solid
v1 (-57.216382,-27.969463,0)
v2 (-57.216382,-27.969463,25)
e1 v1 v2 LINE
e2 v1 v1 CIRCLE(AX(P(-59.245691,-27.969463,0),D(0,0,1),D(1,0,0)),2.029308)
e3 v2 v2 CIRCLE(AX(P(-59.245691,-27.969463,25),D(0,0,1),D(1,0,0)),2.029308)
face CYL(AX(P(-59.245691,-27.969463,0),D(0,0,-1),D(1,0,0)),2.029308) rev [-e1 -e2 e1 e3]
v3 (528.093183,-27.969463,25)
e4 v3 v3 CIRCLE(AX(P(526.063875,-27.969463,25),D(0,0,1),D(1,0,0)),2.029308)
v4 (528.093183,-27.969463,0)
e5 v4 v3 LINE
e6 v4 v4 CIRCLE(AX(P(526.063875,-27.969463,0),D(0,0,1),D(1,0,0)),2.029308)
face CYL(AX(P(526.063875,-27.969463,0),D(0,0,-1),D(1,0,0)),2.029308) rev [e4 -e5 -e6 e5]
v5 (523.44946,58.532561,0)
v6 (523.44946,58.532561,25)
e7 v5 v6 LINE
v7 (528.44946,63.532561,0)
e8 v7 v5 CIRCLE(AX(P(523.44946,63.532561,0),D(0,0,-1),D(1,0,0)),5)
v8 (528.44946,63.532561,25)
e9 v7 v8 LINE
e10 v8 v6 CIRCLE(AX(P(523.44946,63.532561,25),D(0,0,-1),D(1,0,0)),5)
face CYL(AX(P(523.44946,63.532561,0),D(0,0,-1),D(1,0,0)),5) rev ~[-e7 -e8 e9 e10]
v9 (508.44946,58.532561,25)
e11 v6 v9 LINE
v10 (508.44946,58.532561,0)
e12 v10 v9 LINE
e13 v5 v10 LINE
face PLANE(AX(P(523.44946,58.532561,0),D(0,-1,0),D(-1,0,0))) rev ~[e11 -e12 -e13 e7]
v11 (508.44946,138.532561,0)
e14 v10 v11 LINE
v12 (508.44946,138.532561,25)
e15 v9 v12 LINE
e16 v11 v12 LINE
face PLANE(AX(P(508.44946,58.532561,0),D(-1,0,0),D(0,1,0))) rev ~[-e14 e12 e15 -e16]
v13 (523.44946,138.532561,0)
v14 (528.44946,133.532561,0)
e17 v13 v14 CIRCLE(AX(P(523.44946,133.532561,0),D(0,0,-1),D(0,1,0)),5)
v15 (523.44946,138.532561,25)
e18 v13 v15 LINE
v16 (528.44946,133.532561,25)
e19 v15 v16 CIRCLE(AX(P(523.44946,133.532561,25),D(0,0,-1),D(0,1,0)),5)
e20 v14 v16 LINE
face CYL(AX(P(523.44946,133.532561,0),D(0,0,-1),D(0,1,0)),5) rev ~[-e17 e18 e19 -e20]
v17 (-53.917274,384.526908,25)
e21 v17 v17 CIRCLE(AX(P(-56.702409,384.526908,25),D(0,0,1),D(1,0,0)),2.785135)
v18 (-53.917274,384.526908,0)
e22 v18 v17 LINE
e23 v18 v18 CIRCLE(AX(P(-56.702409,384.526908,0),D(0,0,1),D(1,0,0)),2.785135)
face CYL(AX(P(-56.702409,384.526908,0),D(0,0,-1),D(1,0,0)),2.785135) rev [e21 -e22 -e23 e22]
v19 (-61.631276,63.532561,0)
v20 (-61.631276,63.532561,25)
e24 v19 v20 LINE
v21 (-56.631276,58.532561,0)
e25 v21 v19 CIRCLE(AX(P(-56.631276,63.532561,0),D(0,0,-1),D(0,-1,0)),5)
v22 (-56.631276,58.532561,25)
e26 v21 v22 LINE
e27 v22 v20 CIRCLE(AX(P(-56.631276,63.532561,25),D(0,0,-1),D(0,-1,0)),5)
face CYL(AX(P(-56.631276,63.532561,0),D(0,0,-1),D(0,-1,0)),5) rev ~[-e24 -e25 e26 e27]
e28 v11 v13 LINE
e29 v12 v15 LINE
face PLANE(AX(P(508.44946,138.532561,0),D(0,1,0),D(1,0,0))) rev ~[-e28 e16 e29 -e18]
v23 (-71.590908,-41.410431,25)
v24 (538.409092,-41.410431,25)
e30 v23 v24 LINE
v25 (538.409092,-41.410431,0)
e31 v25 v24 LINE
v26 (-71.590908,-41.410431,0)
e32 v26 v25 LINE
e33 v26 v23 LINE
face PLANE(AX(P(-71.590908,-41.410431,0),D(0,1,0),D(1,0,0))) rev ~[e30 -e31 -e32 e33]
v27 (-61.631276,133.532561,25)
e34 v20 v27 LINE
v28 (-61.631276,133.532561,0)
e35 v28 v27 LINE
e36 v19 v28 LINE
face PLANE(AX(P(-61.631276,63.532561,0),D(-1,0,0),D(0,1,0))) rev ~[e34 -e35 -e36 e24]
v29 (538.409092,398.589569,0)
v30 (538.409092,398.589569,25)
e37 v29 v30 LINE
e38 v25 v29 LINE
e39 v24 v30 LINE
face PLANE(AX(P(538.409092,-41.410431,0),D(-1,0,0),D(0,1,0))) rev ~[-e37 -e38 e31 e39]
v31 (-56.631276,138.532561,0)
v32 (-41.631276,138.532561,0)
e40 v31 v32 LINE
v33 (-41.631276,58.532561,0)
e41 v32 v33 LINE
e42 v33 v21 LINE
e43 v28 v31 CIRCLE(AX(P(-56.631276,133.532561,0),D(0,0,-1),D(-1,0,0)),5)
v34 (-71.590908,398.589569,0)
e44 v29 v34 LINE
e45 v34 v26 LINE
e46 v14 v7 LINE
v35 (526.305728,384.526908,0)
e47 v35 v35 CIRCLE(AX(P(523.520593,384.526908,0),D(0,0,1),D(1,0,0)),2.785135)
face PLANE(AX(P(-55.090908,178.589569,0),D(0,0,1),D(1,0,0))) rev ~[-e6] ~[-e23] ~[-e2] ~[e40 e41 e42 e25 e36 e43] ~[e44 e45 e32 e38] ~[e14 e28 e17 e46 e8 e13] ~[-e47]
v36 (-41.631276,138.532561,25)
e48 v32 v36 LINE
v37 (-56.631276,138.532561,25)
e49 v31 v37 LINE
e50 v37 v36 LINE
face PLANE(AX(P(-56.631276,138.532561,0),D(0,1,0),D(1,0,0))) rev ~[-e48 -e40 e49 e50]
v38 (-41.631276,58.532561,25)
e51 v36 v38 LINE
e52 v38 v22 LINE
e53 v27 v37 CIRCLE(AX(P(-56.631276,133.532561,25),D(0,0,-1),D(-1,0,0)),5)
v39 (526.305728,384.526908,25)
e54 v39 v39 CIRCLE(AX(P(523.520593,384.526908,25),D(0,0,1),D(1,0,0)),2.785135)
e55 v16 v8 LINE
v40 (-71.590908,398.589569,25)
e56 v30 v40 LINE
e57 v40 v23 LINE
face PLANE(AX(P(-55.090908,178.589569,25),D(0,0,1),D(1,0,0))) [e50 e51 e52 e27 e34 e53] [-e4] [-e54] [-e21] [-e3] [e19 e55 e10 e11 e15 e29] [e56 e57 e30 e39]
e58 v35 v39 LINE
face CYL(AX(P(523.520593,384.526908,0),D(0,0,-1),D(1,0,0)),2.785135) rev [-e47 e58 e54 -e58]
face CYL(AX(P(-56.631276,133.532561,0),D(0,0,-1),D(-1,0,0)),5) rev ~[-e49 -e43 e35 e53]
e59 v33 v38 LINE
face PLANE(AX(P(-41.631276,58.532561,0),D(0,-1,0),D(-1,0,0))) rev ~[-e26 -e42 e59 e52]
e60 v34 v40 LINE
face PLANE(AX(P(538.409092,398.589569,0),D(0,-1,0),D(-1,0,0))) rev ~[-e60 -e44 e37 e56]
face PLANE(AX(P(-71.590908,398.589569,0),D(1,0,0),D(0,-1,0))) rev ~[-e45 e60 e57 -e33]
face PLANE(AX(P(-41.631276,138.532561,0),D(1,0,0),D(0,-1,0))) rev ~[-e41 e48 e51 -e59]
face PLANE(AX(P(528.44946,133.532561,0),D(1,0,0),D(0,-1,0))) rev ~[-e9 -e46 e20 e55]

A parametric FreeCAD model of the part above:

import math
import FreeCAD as App
import Part
import Sketcher
from FreeCAD import Vector
Q = App.Units.Quantity


def add_polygon(sketch, points):
    """Adds a closed chain of lines whose ends are joined by coincident constraints."""
    first, n = sketch.GeometryCount, len(points)
    for a, b in zip(points, points[1:] + points[:1]):
        sketch.addGeometry(Part.LineSegment(App.Vector(*a, 0), App.Vector(*b, 0)), False)
    for i in range(n):
        sketch.addConstraint(Sketcher.Constraint("Coincident", first + i, 2, first + (i + 1) % n, 1))

doc = App.newDocument("Part")
body = doc.addObject("PartDesign::Body", "Body")

# Sketch on XY plane
sketch1 = doc.addObject("Sketcher::SketchObject", "Sketch")
body.addObject(sketch1)
sketch1.AttachmentSupport = (doc.XY_Plane, [""])
sketch1.MapMode = "FlatFace"
add_polygon(sketch1, [(-71.6, 398.6), (-71.6, -41.4), (538.4, -41.4), (538.4, 398.6)])  # lines 0-3
sketch1.addGeometry(Part.Circle(Vector(-59.2, -28, 0), Vector(0, 0, 1), 2), False)  # 4
sketch1.addGeometry(Part.LineSegment(Vector(-41.6, 58.5, 0), Vector(-56.6, 58.5, 0)), False)  # 5
sketch1.addGeometry(Part.ArcOfCircle(Part.Circle(Vector(-56.6, 63.5, 0), Vector(0, 0, 1), 5), math.radians(180), math.radians(270)), False)  # 6
sketch1.addGeometry(Part.LineSegment(Vector(-61.6, 63.5, 0), Vector(-61.6, 133.5, 0)), False)  # 7
sketch1.addGeometry(Part.ArcOfCircle(Part.Circle(Vector(-56.6, 133.5, 0), Vector(0, 0, 1), 5), math.radians(90), math.radians(180)), False)  # 8
sketch1.addGeometry(Part.LineSegment(Vector(-56.6, 138.5, 0), Vector(-41.6, 138.5, 0)), False)  # 9
sketch1.addGeometry(Part.LineSegment(Vector(-41.6, 138.5, 0), Vector(-41.6, 58.5, 0)), False)  # 10
sketch1.addGeometry(Part.Circle(Vector(526.1, -28, 0), Vector(0, 0, 1), 2), False)  # 11
sketch1.addGeometry(Part.LineSegment(Vector(508.4, 58.5, 0), Vector(508.4, 138.5, 0)), False)  # 12
sketch1.addGeometry(Part.LineSegment(Vector(508.4, 138.5, 0), Vector(523.4, 138.5, 0)), False)  # 13
sketch1.addGeometry(Part.ArcOfCircle(Part.Circle(Vector(523.4, 133.5, 0), Vector(0, 0, 1), 5), math.radians(0), math.radians(90)), False)  # 14
sketch1.addGeometry(Part.LineSegment(Vector(528.4, 133.5, 0), Vector(528.4, 63.5, 0)), False)  # 15
sketch1.addGeometry(Part.ArcOfCircle(Part.Circle(Vector(523.4, 63.5, 0), Vector(0, 0, 1), 5), math.radians(-90), math.radians(0)), False)  # 16
sketch1.addGeometry(Part.LineSegment(Vector(523.4, 58.5, 0), Vector(508.4, 58.5, 0)), False)  # 17
sketch1.addGeometry(Part.Circle(Vector(-56.7, 384.5, 0), Vector(0, 0, 1), 2.8), False)  # 18
sketch1.addGeometry(Part.Circle(Vector(523.5, 384.5, 0), Vector(0, 0, 1), 2.8), False)  # 19
sketch1.addConstraint(Sketcher.Constraint("Tangent", 5, 2, 6, 2))
sketch1.addConstraint(Sketcher.Constraint("Tangent", 6, 1, 7, 1))
sketch1.addConstraint(Sketcher.Constraint("Tangent", 7, 2, 8, 2))
sketch1.addConstraint(Sketcher.Constraint("Tangent", 8, 1, 9, 1))
sketch1.addConstraint(Sketcher.Constraint("Coincident", 9, 2, 10, 1))
sketch1.addConstraint(Sketcher.Constraint("Coincident", 10, 2, 5, 1))
sketch1.addConstraint(Sketcher.Constraint("Coincident", 12, 2, 13, 1))
sketch1.addConstraint(Sketcher.Constraint("Tangent", 13, 2, 14, 2))
sketch1.addConstraint(Sketcher.Constraint("Tangent", 14, 1, 15, 1))
sketch1.addConstraint(Sketcher.Constraint("Tangent", 15, 2, 16, 2))
sketch1.addConstraint(Sketcher.Constraint("Tangent", 16, 1, 17, 1))
sketch1.addConstraint(Sketcher.Constraint("Coincident", 17, 2, 12, 1))
sketch1.addConstraint(Sketcher.Constraint("Vertical", 0))
sketch1.addConstraint(Sketcher.Constraint("Horizontal", 1))
sketch1.addConstraint(Sketcher.Constraint("Vertical", 2))
sketch1.addConstraint(Sketcher.Constraint("Horizontal", 3))
sketch1.addConstraint(Sketcher.Constraint("Horizontal", 5))
sketch1.addConstraint(Sketcher.Constraint("Vertical", 7))
sketch1.addConstraint(Sketcher.Constraint("Horizontal", 9))
sketch1.addConstraint(Sketcher.Constraint("Vertical", 10))
sketch1.addConstraint(Sketcher.Constraint("Vertical", 12))
sketch1.addConstraint(Sketcher.Constraint("Horizontal", 13))
sketch1.addConstraint(Sketcher.Constraint("Vertical", 15))
sketch1.addConstraint(Sketcher.Constraint("Horizontal", 17))
sketch1.addConstraint(Sketcher.Constraint("Equal", 6, 8))
sketch1.addConstraint(Sketcher.Constraint("Equal", 4, 11))
sketch1.addConstraint(Sketcher.Constraint("Equal", 8, 14))
sketch1.addConstraint(Sketcher.Constraint("Equal", 14, 16))
sketch1.addConstraint(Sketcher.Constraint("Equal", 18, 19))
sketch1.addConstraint(Sketcher.Constraint("Horizontal", 4, 3, 11, 3))
sketch1.addConstraint(Sketcher.Constraint("Horizontal", 8, 3, 14, 3))
sketch1.addConstraint(Sketcher.Constraint("Horizontal", 6, 3, 16, 3))
sketch1.addConstraint(Sketcher.Constraint("Horizontal", 18, 3, 19, 3))
sketch1.addConstraint(Sketcher.Constraint("Equal", 9, 13))
sketch1.addConstraint(Sketcher.Constraint("Radius", 6, Q("5 mm")))
sketch1.addConstraint(Sketcher.Constraint("DistanceX", 1, 1, 1, 2, Q("610 mm")))
sketch1.addConstraint(Sketcher.Constraint("DistanceX", 5, 2, 5, 1, Q("15 mm")))
sketch1.addConstraint(Sketcher.Constraint("DistanceY", 0, 2, 0, 1, Q("440 mm")))
sketch1.addConstraint(Sketcher.Constraint("DistanceY", 7, 1, 7, 2, Q("70 mm")))
sketch1.addConstraint(Sketcher.Constraint("Diameter", 18, Q("5.57027 mm")))
sketch1.addConstraint(Sketcher.Constraint("Diameter", 4, Q("4.058617 mm")))
sketch1.addConstraint(Sketcher.Constraint("DistanceX", 0, 2, 18, 3, Q("14.888499 mm")))
sketch1.addConstraint(Sketcher.Constraint("DistanceX", 19, 3, 1, 2, Q("14.888499 mm")))
sketch1.addConstraint(Sketcher.Constraint("DistanceX", 4, 3, -1, 1, Q("59.245691 mm")))
sketch1.addConstraint(Sketcher.Constraint("DistanceY", -1, 1, 6, 3, Q("63.532561 mm")))
sketch1.addConstraint(Sketcher.Constraint("DistanceX", -1, 1, 14, 3, Q("523.44946 mm")))
sketch1.addConstraint(Sketcher.Constraint("DistanceX", 18, 3, -1, 1, Q("56.702409 mm")))
sketch1.addConstraint(Sketcher.Constraint("DistanceY", -1, 1, 18, 3, Q("384.526908 mm")))
sketch1.addConstraint(Sketcher.Constraint("DistanceY", 0, 2, -1, 1, Q("41.410431 mm")))
sketch1.addConstraint(Sketcher.Constraint("DistanceX", 6, 3, 11, 3, Q("582.695151 mm")))
sketch1.addConstraint(Sketcher.Constraint("DistanceY", 4, 3, 18, 3, Q("412.496371 mm")))
sketch1.addConstraint(Sketcher.Constraint("DistanceX", 19, 3, 11, 3, Q("2.543282 mm")))
pad1 = doc.addObject("PartDesign::Pad", "Pad")
body.addObject(pad1)
pad1.Profile = sketch1
pad1.Length = 25

doc.recompute()
